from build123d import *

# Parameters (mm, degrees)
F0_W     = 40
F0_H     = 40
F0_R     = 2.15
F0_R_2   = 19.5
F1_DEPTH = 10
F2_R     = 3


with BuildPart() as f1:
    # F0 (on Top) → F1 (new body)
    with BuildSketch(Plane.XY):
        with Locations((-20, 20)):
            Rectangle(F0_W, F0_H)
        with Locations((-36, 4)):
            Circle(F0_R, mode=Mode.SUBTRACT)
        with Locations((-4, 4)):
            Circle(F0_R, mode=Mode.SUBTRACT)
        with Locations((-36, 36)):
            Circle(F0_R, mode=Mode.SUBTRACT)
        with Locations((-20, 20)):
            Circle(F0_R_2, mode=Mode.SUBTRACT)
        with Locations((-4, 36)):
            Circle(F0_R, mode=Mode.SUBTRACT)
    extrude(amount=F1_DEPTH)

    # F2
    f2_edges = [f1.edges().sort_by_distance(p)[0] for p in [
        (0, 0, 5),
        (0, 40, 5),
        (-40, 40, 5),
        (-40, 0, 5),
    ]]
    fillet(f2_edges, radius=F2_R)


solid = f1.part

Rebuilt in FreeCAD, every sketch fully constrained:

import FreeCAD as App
import Part
import Sketcher

V = App.Vector


def edges_at(feature, points):
    """Names of the edges that pass closest to the given points."""
    edges = feature.Shape.Edges
    near = lambda p: min(range(len(edges)), key=lambda i: edges[i].distToShape(Part.Vertex(*p))[0])
    return sorted({f"Edge{near(p) + 1}" for p in points})

doc = App.newDocument("Part")
body = doc.addObject("PartDesign::Body", "Body")

sketch1 = body.newObject("Sketcher::SketchObject", "Sketch")
sketch1.AttachmentSupport = (doc.getObject("XY_Plane"), [""])
sketch1.MapMode = "FlatFace"
sketch1.addGeometry([
    Part.LineSegment(V(-40, 40, 0), V(-40, 0, 0)),
    Part.LineSegment(V(-40, 0, 0), V(0, 0, 0)),
    Part.LineSegment(V(0, 0, 0), V(0, 40, 0)),
    Part.LineSegment(V(0, 40, 0), V(-40, 40, 0)),
    Part.Circle(V(-36, 4, 0), V(0, 0, 1), 2.1),
    Part.Circle(V(-4, 4, 0), V(0, 0, 1), 2.1),
    Part.Circle(V(-36, 36, 0), V(0, 0, 1), 2.1),
    Part.Circle(V(-20, 20, 0), V(0, 0, 1), 19.5),
    Part.Circle(V(-4, 36, 0), V(0, 0, 1), 2.1),
], False)
sketch1.addConstraint([
    Sketcher.Constraint("Coincident", 0, 2, 1, 1),
    Sketcher.Constraint("Coincident", 1, 2, 2, 1),
    Sketcher.Constraint("Coincident", 2, 2, 3, 1),
    Sketcher.Constraint("Coincident", 3, 2, 0, 1),
    Sketcher.Constraint("Vertical", 0),
    Sketcher.Constraint("Horizontal", 1),
    Sketcher.Constraint("Vertical", 2),
    Sketcher.Constraint("Horizontal", 3),
    Sketcher.Constraint("Coincident", 1, 2, -1, 1),
    Sketcher.Constraint("Equal", 4, 5),
    Sketcher.Constraint("Equal", 5, 6),
    Sketcher.Constraint("Equal", 6, 8),
    Sketcher.Constraint("Horizontal", 4, 3, 5, 3),
    Sketcher.Constraint("Horizontal", 6, 3, 8, 3),
    Sketcher.Constraint("Vertical", 4, 3, 6, 3),
    Sketcher.Constraint("Vertical", 5, 3, 8, 3),
    Sketcher.Constraint("Equal", 3, 0),
    Sketcher.Constraint("Diameter", 7, 39.0),
    Sketcher.Constraint("Diameter", 4, 4.3),
    Sketcher.Constraint("DistanceX", 1, 1, 1, 2, 40.0),
    Sketcher.Constraint("DistanceX", 4, 3, -1, 1, 36.0),
    Sketcher.Constraint("DistanceY", -1, 1, 4, 3, 4.0),
    Sketcher.Constraint("DistanceX", 5, 3, -1, 1, 4.0),
    Sketcher.Constraint("DistanceY", -1, 1, 6, 3, 36.0),
    Sketcher.Constraint("DistanceX", 7, 3, -1, 1, 20.0),
    Sketcher.Constraint("DistanceY", -1, 1, 7, 3, 20.0),
])
pad1 = body.newObject("PartDesign::Pad", "Pad")
pad1.Profile = sketch1
pad1.Length = 10
doc.recompute()

fillet = body.newObject("PartDesign::Fillet", "Fillet")
fillet.Base = (pad1, edges_at(pad1, [
    (0, 0, 5),
    (0, 40, 5),
    (-40, 40, 5),
    (-40, 0, 5),
]))
fillet.Radius = 3

doc.recompute()
